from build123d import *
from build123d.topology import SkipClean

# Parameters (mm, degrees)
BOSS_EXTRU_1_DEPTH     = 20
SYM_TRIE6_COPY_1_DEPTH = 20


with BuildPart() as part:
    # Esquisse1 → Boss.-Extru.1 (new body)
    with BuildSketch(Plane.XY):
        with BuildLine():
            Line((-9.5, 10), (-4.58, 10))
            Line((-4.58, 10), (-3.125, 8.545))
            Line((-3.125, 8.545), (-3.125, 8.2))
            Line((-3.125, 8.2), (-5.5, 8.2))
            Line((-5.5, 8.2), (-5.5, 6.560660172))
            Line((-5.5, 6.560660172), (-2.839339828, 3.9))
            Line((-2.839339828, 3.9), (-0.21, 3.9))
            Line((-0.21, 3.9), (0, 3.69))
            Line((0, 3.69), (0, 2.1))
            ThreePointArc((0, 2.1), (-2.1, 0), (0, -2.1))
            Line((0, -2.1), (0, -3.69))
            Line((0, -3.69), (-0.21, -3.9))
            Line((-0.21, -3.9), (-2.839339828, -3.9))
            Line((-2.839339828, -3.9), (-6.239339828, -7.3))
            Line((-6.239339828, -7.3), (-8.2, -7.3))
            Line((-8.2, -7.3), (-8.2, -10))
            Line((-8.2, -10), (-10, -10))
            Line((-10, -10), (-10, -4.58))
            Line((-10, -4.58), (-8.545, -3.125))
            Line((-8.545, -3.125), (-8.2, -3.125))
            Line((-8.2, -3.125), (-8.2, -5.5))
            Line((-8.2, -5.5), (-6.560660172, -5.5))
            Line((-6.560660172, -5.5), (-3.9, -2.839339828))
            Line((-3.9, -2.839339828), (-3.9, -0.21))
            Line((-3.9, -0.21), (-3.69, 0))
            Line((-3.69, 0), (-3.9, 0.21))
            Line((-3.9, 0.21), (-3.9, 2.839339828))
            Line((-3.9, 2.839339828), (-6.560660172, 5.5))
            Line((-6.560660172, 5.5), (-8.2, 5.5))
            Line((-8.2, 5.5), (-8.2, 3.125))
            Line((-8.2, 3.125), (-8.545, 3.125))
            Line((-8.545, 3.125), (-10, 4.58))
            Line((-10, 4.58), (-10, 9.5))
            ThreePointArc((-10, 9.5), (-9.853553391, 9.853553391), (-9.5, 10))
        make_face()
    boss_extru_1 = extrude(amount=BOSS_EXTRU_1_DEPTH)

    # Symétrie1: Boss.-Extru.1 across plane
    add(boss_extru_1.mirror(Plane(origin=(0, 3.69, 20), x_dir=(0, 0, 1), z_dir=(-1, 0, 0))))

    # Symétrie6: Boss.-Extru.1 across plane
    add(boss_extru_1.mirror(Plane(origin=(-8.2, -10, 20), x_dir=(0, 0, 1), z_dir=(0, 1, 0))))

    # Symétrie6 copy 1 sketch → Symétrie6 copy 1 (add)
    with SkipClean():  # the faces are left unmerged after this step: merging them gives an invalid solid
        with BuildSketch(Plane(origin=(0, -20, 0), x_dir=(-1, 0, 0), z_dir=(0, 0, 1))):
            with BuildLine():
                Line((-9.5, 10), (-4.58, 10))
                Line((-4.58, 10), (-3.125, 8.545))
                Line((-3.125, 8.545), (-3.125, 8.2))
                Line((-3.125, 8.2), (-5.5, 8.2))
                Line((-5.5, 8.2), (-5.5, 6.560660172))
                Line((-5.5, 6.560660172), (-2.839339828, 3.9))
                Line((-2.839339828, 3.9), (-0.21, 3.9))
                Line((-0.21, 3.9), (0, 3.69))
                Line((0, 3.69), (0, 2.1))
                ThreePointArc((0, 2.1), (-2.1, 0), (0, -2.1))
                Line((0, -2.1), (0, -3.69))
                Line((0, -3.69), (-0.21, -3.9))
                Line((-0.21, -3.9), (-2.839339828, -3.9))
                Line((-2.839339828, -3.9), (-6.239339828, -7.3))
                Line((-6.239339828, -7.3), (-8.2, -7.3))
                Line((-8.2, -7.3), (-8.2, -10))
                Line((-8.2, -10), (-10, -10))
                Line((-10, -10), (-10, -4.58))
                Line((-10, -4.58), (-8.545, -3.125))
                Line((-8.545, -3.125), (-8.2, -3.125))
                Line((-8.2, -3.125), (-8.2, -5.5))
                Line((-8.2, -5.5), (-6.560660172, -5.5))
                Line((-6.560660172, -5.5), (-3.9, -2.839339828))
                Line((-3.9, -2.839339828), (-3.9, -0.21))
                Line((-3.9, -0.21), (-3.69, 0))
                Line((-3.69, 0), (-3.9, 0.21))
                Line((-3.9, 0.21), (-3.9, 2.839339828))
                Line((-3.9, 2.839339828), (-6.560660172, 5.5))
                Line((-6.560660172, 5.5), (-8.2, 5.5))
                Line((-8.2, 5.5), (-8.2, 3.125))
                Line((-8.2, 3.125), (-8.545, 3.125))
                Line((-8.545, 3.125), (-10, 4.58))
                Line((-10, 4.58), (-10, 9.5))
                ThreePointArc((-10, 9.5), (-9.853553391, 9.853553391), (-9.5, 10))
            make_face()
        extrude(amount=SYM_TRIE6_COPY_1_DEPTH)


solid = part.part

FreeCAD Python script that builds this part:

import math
import FreeCAD as App
import Part
import Sketcher
Q = App.Units.Quantity

doc = App.newDocument("Part")
body = doc.addObject("PartDesign::Body", "Body")

# Sketch on XY plane
sketch1 = body.newObject("Sketcher::SketchObject", "Sketch")
sketch1.AttachmentSupport = (doc.getObject("XY_Plane"), [""])
sketch1.MapMode = "FlatFace"
sketch1.addGeometry([
    Part.LineSegment(App.Vector(-4.58, 10, 0), App.Vector(-9.5, 10, 0)),  # 0
    Part.ArcOfCircle(Part.Circle(App.Vector(-9.5, 9.5, 0), App.Vector(0, 0, 1), 0.5), math.radians(90), math.radians(180)),  # 1
    Part.LineSegment(App.Vector(-10, 9.5, 0), App.Vector(-10, 4.58, 0)),  # 2
    Part.LineSegment(App.Vector(-10, 4.58, 0), App.Vector(-8.54, 3.12, 0)),  # 3
    Part.LineSegment(App.Vector(-8.54, 3.12, 0), App.Vector(-8.2, 3.12, 0)),  # 4
    Part.LineSegment(App.Vector(-8.2, 3.12, 0), App.Vector(-8.2, 5.5, 0)),  # 5
    Part.LineSegment(App.Vector(-8.2, 5.5, 0), App.Vector(-6.56, 5.5, 0)),  # 6
    Part.LineSegment(App.Vector(-6.56, 5.5, 0), App.Vector(-3.9, 2.84, 0)),  # 7
    Part.LineSegment(App.Vector(-3.9, 2.84, 0), App.Vector(-3.9, 0.21, 0)),  # 8
    Part.LineSegment(App.Vector(-3.9, 0.21, 0), App.Vector(-3.69, 0, 0)),  # 9
    Part.LineSegment(App.Vector(-3.69, 0, 0), App.Vector(-3.9, -0.21, 0)),  # 10
    Part.LineSegment(App.Vector(-3.9, -0.21, 0), App.Vector(-3.9, -2.84, 0)),  # 11
    Part.LineSegment(App.Vector(-3.9, -2.84, 0), App.Vector(-6.56, -5.5, 0)),  # 12
    Part.LineSegment(App.Vector(-6.56, -5.5, 0), App.Vector(-8.2, -5.5, 0)),  # 13
    Part.LineSegment(App.Vector(-8.2, -5.5, 0), App.Vector(-8.2, -3.12, 0)),  # 14
    Part.LineSegment(App.Vector(-8.2, -3.12, 0), App.Vector(-8.54, -3.12, 0)),  # 15
    Part.LineSegment(App.Vector(-8.54, -3.12, 0), App.Vector(-10, -4.58, 0)),  # 16
    Part.LineSegment(App.Vector(-10, -4.58, 0), App.Vector(-10, -10, 0)),  # 17
    Part.LineSegment(App.Vector(-10, -10, 0), App.Vector(-8.2, -10, 0)),  # 18
    Part.LineSegment(App.Vector(-8.2, -10, 0), App.Vector(-8.2, -7.3, 0)),  # 19
    Part.LineSegment(App.Vector(-8.2, -7.3, 0), App.Vector(-6.24, -7.3, 0)),  # 20
    Part.LineSegment(App.Vector(-6.24, -7.3, 0), App.Vector(-2.84, -3.9, 0)),  # 21
    Part.LineSegment(App.Vector(-2.84, -3.9, 0), App.Vector(-0.21, -3.9, 0)),  # 22
    Part.LineSegment(App.Vector(-0.21, -3.9, 0), App.Vector(0, -3.69, 0)),  # 23
    Part.LineSegment(App.Vector(0, -3.69, 0), App.Vector(0, -2.1, 0)),  # 24
    Part.ArcOfCircle(Part.Circle(App.Vector(0, 0, 0), App.Vector(0, 0, 1), 2.1), math.radians(90), math.radians(270)),  # 25
    Part.LineSegment(App.Vector(0, 2.1, 0), App.Vector(0, 3.69, 0)),  # 26
    Part.LineSegment(App.Vector(0, 3.69, 0), App.Vector(-0.21, 3.9, 0)),  # 27
    Part.LineSegment(App.Vector(-0.21, 3.9, 0), App.Vector(-2.84, 3.9, 0)),  # 28
    Part.LineSegment(App.Vector(-2.84, 3.9, 0), App.Vector(-5.5, 6.56, 0)),  # 29
    Part.LineSegment(App.Vector(-5.5, 6.56, 0), App.Vector(-5.5, 8.2, 0)),  # 30
    Part.LineSegment(App.Vector(-5.5, 8.2, 0), App.Vector(-3.12, 8.2, 0)),  # 31
    Part.LineSegment(App.Vector(-3.12, 8.2, 0), App.Vector(-3.12, 8.54, 0)),  # 32
    Part.LineSegment(App.Vector(-3.12, 8.54, 0), App.Vector(-4.58, 10, 0)),  # 33
], False)
sketch1.addConstraint([
    Sketcher.Constraint("Tangent", 0, 2, 1, 1),
    Sketcher.Constraint("Tangent", 1, 2, 2, 1),
    Sketcher.Constraint("Coincident", 2, 2, 3, 1),
    Sketcher.Constraint("Coincident", 3, 2, 4, 1),
    Sketcher.Constraint("Coincident", 4, 2, 5, 1),
    Sketcher.Constraint("Coincident", 5, 2, 6, 1),
    Sketcher.Constraint("Coincident", 6, 2, 7, 1),
    Sketcher.Constraint("Coincident", 7, 2, 8, 1),
    Sketcher.Constraint("Coincident", 8, 2, 9, 1),
    Sketcher.Constraint("Coincident", 9, 2, 10, 1),
    Sketcher.Constraint("Coincident", 10, 2, 11, 1),
    Sketcher.Constraint("Coincident", 11, 2, 12, 1),
    Sketcher.Constraint("Coincident", 12, 2, 13, 1),
    Sketcher.Constraint("Coincident", 13, 2, 14, 1),
    Sketcher.Constraint("Coincident", 14, 2, 15, 1),
    Sketcher.Constraint("Coincident", 15, 2, 16, 1),
    Sketcher.Constraint("Coincident", 16, 2, 17, 1),
    Sketcher.Constraint("Coincident", 17, 2, 18, 1),
    Sketcher.Constraint("Coincident", 18, 2, 19, 1),
    Sketcher.Constraint("Coincident", 19, 2, 20, 1),
    Sketcher.Constraint("Coincident", 20, 2, 21, 1),
    Sketcher.Constraint("Coincident", 21, 2, 22, 1),
    Sketcher.Constraint("Coincident", 22, 2, 23, 1),
    Sketcher.Constraint("Coincident", 23, 2, 24, 1),
    Sketcher.Constraint("Coincident", 24, 2, 25, 2),
    Sketcher.Constraint("Coincident", 25, 1, 26, 1),
    Sketcher.Constraint("Coincident", 26, 2, 27, 1),
    Sketcher.Constraint("Coincident", 27, 2, 28, 1),
    Sketcher.Constraint("Coincident", 28, 2, 29, 1),
    Sketcher.Constraint("Coincident", 29, 2, 30, 1),
    Sketcher.Constraint("Coincident", 30, 2, 31, 1),
    Sketcher.Constraint("Coincident", 31, 2, 32, 1),
    Sketcher.Constraint("Coincident", 32, 2, 33, 1),
    Sketcher.Constraint("Coincident", 33, 2, 0, 1),
    Sketcher.Constraint("Horizontal", 0),
    Sketcher.Constraint("Vertical", 2),
    Sketcher.Constraint("Horizontal", 4),
    Sketcher.Constraint("Vertical", 5),
    Sketcher.Constraint("Horizontal", 6),
    Sketcher.Constraint("Vertical", 8),
    Sketcher.Constraint("Vertical", 11),
    Sketcher.Constraint("Horizontal", 13),
    Sketcher.Constraint("Vertical", 14),
    Sketcher.Constraint("Horizontal", 15),
    Sketcher.Constraint("Vertical", 17),
    Sketcher.Constraint("Horizontal", 18),
    Sketcher.Constraint("Vertical", 19),
    Sketcher.Constraint("Horizontal", 20),
    Sketcher.Constraint("Horizontal", 22),
    Sketcher.Constraint("Vertical", 24),
    Sketcher.Constraint("Vertical", 26),
    Sketcher.Constraint("Horizontal", 28),
    Sketcher.Constraint("Vertical", 30),
    Sketcher.Constraint("Horizontal", 31),
    Sketcher.Constraint("Vertical", 32),
    Sketcher.Constraint("Coincident", 25, 3, -1, 1),
    Sketcher.Constraint("Symmetric", 23, 2, 26, 2, -1, 1),
    Sketcher.Constraint("Symmetric", 8, 2, 10, 2, -1),
    Sketcher.Constraint("Symmetric", 6, 2, 12, 2, -1),
    Sketcher.Constraint("Symmetric", 4, 2, 14, 2, -1),
    Sketcher.Constraint("Symmetric", 2, 2, 16, 2, -1),
    Sketcher.Constraint("Symmetric", 22, 2, 27, 2, -1),
    Sketcher.Constraint("PointOnObject", 9, 2, -1),
    Sketcher.Constraint("PointOnObject", 23, 2, -2),
    Sketcher.Constraint("Parallel", 3, 7),
    Sketcher.Constraint("Parallel", 7, 9),
    Sketcher.Constraint("Perpendicular", 9, 10),
    Sketcher.Constraint("Parallel", 10, 12),
    Sketcher.Constraint("Parallel", 12, 16),
    Sketcher.Constraint("Parallel", 16, 21),
    Sketcher.Constraint("Parallel", 21, 23),
    Sketcher.Constraint("Parallel", 27, 29),
    Sketcher.Constraint("Parallel", 29, 33),
    Sketcher.Constraint("Vertical", 14, 2, 18, 2),
    Sketcher.Constraint("Vertical", 21, 2, 28, 2),
    Sketcher.Constraint("Equal", 0, 2),
    Sketcher.Constraint("Equal", 31, 5),
    Sketcher.Constraint("Equal", 28, 8),
    Sketcher.Constraint("Equal", 13, 30),
    Sketcher.Constraint("Equal", 15, 32),
    Sketcher.Constraint("Equal", 10, 23),
    Sketcher.Constraint("Equal", 12, 29),
    Sketcher.Constraint("Equal", 16, 33),
    Sketcher.Constraint("Radius", 1, Q("0.5 mm")),
    Sketcher.Constraint("Radius", 25, Q("2.1 mm")),
    Sketcher.Constraint("DistanceX", 18, 1, 18, 2, Q("1.8 mm")),
    Sketcher.Constraint("DistanceY", 19, 1, 19, 2, Q("2.7 mm")),
    Sketcher.Constraint("DistanceY", -1, 1, 0, 2, Q("10 mm")),
    Sketcher.Constraint("DistanceY", 17, 2, -1, 1, Q("10 mm")),
    Sketcher.Constraint("DistanceY", 5, 2, 1, 3, Q("4 mm")),
    Sketcher.Constraint("DistanceX", 0, 2, 0, 1, Q("4.92 mm")),
    Sketcher.Constraint("DistanceY", 24, 1, 24, 2, Q("1.59 mm")),
    Sketcher.Constraint("DistanceX", 7, 2, -1, 1, Q("3.9 mm")),
    Sketcher.Constraint("DistanceX", 4, 1, 4, 2, Q("0.345 mm")),
    Sketcher.Constraint("DistanceX", 6, 1, 6, 2, Q("1.63934 mm")),
])
pad1 = body.newObject("PartDesign::Pad", "Pad")
pad1.Profile = sketch1
pad1.Length = 20
doc.recompute()

mirrored = body.newObject("PartDesign::Mirrored", "Mirrored")
mirrored.Originals = [pad1]
mirrored.MirrorPlane = (doc.getObject("YZ_Plane"), [""])
body.Tip = mirrored
doc.recompute()

datumplane = body.newObject("PartDesign::Plane", "DatumPlane")
datumplane.AttachmentSupport = (doc.getObject("XZ_Plane"), [""])
datumplane.MapMode = "FlatFace"
datumplane.AttachmentOffset = App.Placement(App.Vector(0, 0, 10), App.Rotation())
mirrored2 = body.newObject("PartDesign::Mirrored", "Mirrored001")
mirrored2.Originals = [pad1]
mirrored2.MirrorPlane = (datumplane, [""])
body.Tip = mirrored2

# Sketch on XY plane
sketch2 = body.newObject("Sketcher::SketchObject", "Sketch001")
sketch2.AttachmentSupport = (doc.getObject("XY_Plane"), [""])
sketch2.MapMode = "FlatFace"
sketch2.addGeometry([
    Part.LineSegment(App.Vector(4.58, -30, 0), App.Vector(9.5, -30, 0)),  # 0
    Part.ArcOfCircle(Part.Circle(App.Vector(9.5, -29.5, 0), App.Vector(0, 0, 1), 0.5), math.radians(-90), math.radians(0)),  # 1
    Part.LineSegment(App.Vector(10, -29.5, 0), App.Vector(10, -24.58, 0)),  # 2
    Part.LineSegment(App.Vector(10, -24.58, 0), App.Vector(8.54, -23.12, 0)),  # 3
    Part.LineSegment(App.Vector(8.54, -23.12, 0), App.Vector(8.2, -23.12, 0)),  # 4
    Part.LineSegment(App.Vector(8.2, -23.12, 0), App.Vector(8.2, -25.5, 0)),  # 5
    Part.LineSegment(App.Vector(8.2, -25.5, 0), App.Vector(6.56, -25.5, 0)),  # 6
    Part.LineSegment(App.Vector(6.56, -25.5, 0), App.Vector(3.9, -22.84, 0)),  # 7
    Part.LineSegment(App.Vector(3.9, -22.84, 0), App.Vector(3.9, -20.21, 0)),  # 8
    Part.LineSegment(App.Vector(3.9, -20.21, 0), App.Vector(3.69, -20, 0)),  # 9
    Part.LineSegment(App.Vector(3.69, -20, 0), App.Vector(3.9, -19.79, 0)),  # 10
    Part.LineSegment(App.Vector(3.9, -19.79, 0), App.Vector(3.9, -17.16, 0)),  # 11
    Part.LineSegment(App.Vector(3.9, -17.16, 0), App.Vector(6.56, -14.5, 0)),  # 12
    Part.LineSegment(App.Vector(6.56, -14.5, 0), App.Vector(8.2, -14.5, 0)),  # 13
    Part.LineSegment(App.Vector(8.2, -14.5, 0), App.Vector(8.2, -16.88, 0)),  # 14
    Part.LineSegment(App.Vector(8.2, -16.88, 0), App.Vector(8.54, -16.88, 0)),  # 15
    Part.LineSegment(App.Vector(8.54, -16.88, 0), App.Vector(10, -15.42, 0)),  # 16
    Part.LineSegment(App.Vector(10, -15.42, 0), App.Vector(10, -10, 0)),  # 17
    Part.LineSegment(App.Vector(10, -10, 0), App.Vector(8.2, -10, 0)),  # 18
    Part.LineSegment(App.Vector(8.2, -10, 0), App.Vector(8.2, -12.7, 0)),  # 19
    Part.LineSegment(App.Vector(8.2, -12.7, 0), App.Vector(6.24, -12.7, 0)),  # 20
    Part.LineSegment(App.Vector(6.24, -12.7, 0), App.Vector(2.84, -16.1, 0)),  # 21
    Part.LineSegment(App.Vector(2.84, -16.1, 0), App.Vector(0.21, -16.1, 0)),  # 22
    Part.LineSegment(App.Vector(0.21, -16.1, 0), App.Vector(0, -16.31, 0)),  # 23
    Part.LineSegment(App.Vector(0, -16.31, 0), App.Vector(0, -17.9, 0)),  # 24
    Part.ArcOfCircle(Part.Circle(App.Vector(0, -20, 0), App.Vector(0, 0, 1), 2.1), math.radians(-90), math.radians(90)),  # 25
    Part.LineSegment(App.Vector(0, -22.1, 0), App.Vector(0, -23.69, 0)),  # 26
    Part.LineSegment(App.Vector(0, -23.69, 0), App.Vector(0.21, -23.9, 0)),  # 27
    Part.LineSegment(App.Vector(0.21, -23.9, 0), App.Vector(2.84, -23.9, 0)),  # 28
    Part.LineSegment(App.Vector(2.84, -23.9, 0), App.Vector(5.5, -26.56, 0)),  # 29
    Part.LineSegment(App.Vector(5.5, -26.56, 0), App.Vector(5.5, -28.2, 0)),  # 30
    Part.LineSegment(App.Vector(5.5, -28.2, 0), App.Vector(3.12, -28.2, 0)),  # 31
    Part.LineSegment(App.Vector(3.12, -28.2, 0), App.Vector(3.12, -28.55, 0)),  # 32
    Part.LineSegment(App.Vector(3.12, -28.55, 0), App.Vector(4.58, -30, 0)),  # 33
], False)
sketch2.addConstraint([
    Sketcher.Constraint("Tangent", 0, 2, 1, 1),
    Sketcher.Constraint("Tangent", 1, 2, 2, 1),
    Sketcher.Constraint("Coincident", 2, 2, 3, 1),
    Sketcher.Constraint("Coincident", 3, 2, 4, 1),
    Sketcher.Constraint("Coincident", 4, 2, 5, 1),
    Sketcher.Constraint("Coincident", 5, 2, 6, 1),
    Sketcher.Constraint("Coincident", 6, 2, 7, 1),
    Sketcher.Constraint("Coincident", 7, 2, 8, 1),
    Sketcher.Constraint("Coincident", 8, 2, 9, 1),
    Sketcher.Constraint("Coincident", 9, 2, 10, 1),
    Sketcher.Constraint("Coincident", 10, 2, 11, 1),
    Sketcher.Constraint("Coincident", 11, 2, 12, 1),
    Sketcher.Constraint("Coincident", 12, 2, 13, 1),
    Sketcher.Constraint("Coincident", 13, 2, 14, 1),
    Sketcher.Constraint("Coincident", 14, 2, 15, 1),
    Sketcher.Constraint("Coincident", 15, 2, 16, 1),
    Sketcher.Constraint("Coincident", 16, 2, 17, 1),
    Sketcher.Constraint("Coincident", 17, 2, 18, 1),
    Sketcher.Constraint("Coincident", 18, 2, 19, 1),
    Sketcher.Constraint("Coincident", 19, 2, 20, 1),
    Sketcher.Constraint("Coincident", 20, 2, 21, 1),
    Sketcher.Constraint("Coincident", 21, 2, 22, 1),
    Sketcher.Constraint("Coincident", 22, 2, 23, 1),
    Sketcher.Constraint("Coincident", 23, 2, 24, 1),
    Sketcher.Constraint("Coincident", 24, 2, 25, 2),
    Sketcher.Constraint("Coincident", 25, 1, 26, 1),
    Sketcher.Constraint("Coincident", 26, 2, 27, 1),
    Sketcher.Constraint("Coincident", 27, 2, 28, 1),
    Sketcher.Constraint("Coincident", 28, 2, 29, 1),
    Sketcher.Constraint("Coincident", 29, 2, 30, 1),
    Sketcher.Constraint("Coincident", 30, 2, 31, 1),
    Sketcher.Constraint("Coincident", 31, 2, 32, 1),
    Sketcher.Constraint("Coincident", 32, 2, 33, 1),
    Sketcher.Constraint("Coincident", 33, 2, 0, 1),
    Sketcher.Constraint("Horizontal", 0),
    Sketcher.Constraint("Vertical", 2),
    Sketcher.Constraint("Horizontal", 4),
    Sketcher.Constraint("Vertical", 5),
    Sketcher.Constraint("Horizontal", 6),
    Sketcher.Constraint("Vertical", 8),
    Sketcher.Constraint("Vertical", 11),
    Sketcher.Constraint("Horizontal", 13),
    Sketcher.Constraint("Vertical", 14),
    Sketcher.Constraint("Horizontal", 15),
    Sketcher.Constraint("Vertical", 17),
    Sketcher.Constraint("Horizontal", 18),
    Sketcher.Constraint("Vertical", 19),
    Sketcher.Constraint("Horizontal", 20),
    Sketcher.Constraint("Horizontal", 22),
    Sketcher.Constraint("Vertical", 24),
    Sketcher.Constraint("Vertical", 26),
    Sketcher.Constraint("Horizontal", 28),
    Sketcher.Constraint("Vertical", 30),
    Sketcher.Constraint("Horizontal", 31),
    Sketcher.Constraint("Vertical", 32),
    Sketcher.Constraint("PointOnObject", 25, 3, -2),
    Sketcher.Constraint("PointOnObject", 23, 2, -2),
    Sketcher.Constraint("PointOnObject", 25, 1, -2),
    Sketcher.Constraint("Parallel", 3, 7),
    Sketcher.Constraint("Parallel", 7, 9),
    Sketcher.Constraint("Perpendicular", 9, 10),
    Sketcher.Constraint("Parallel", 10, 12),
    Sketcher.Constraint("Parallel", 12, 16),
    Sketcher.Constraint("Parallel", 16, 21),
    Sketcher.Constraint("Parallel", 21, 23),
    Sketcher.Constraint("Perpendicular", 23, 27),
    Sketcher.Constraint("Parallel", 27, 29),
    Sketcher.Constraint("Parallel", 29, 33),
    Sketcher.Constraint("Horizontal", 25, 3, 9, 2),
    Sketcher.Constraint("Vertical", 8, 2, 10, 2),
    Sketcher.Constraint("Vertical", 6, 2, 12, 2),
    Sketcher.Constraint("Vertical", 5, 2, 13, 2),
    Sketcher.Constraint("Vertical", 3, 2, 15, 2),
    Sketcher.Constraint("Vertical", 2, 2, 16, 2),
    Sketcher.Constraint("Vertical", 14, 2, 18, 2),
    Sketcher.Constraint("Vertical", 22, 2, 27, 2),
    Sketcher.Constraint("Vertical", 21, 2, 28, 2),
    Sketcher.Constraint("Equal", 0, 2),
    Sketcher.Constraint("Equal", 31, 5),
    Sketcher.Constraint("Equal", 28, 8),
    Sketcher.Constraint("Equal", 8, 11),
    Sketcher.Constraint("Equal", 5, 14),
    Sketcher.Constraint("Equal", 24, 26),
    Sketcher.Constraint("Equal", 13, 30),
    Sketcher.Constraint("Equal", 15, 32),
    Sketcher.Constraint("Equal", 9, 10),
    Sketcher.Constraint("Equal", 10, 23),
    Sketcher.Constraint("Equal", 12, 29),
    Sketcher.Constraint("Equal", 16, 33),
    Sketcher.Constraint("Radius", 1, Q("0.5 mm")),
    Sketcher.Constraint("Radius", 25, Q("2.1 mm")),
    Sketcher.Constraint("DistanceX", 18, 2, 18, 1, Q("1.8 mm")),
    Sketcher.Constraint("DistanceY", 19, 2, 19, 1, Q("2.7 mm")),
    Sketcher.Constraint("DistanceY", 25, 3, -1, 1, Q("20 mm")),
    Sketcher.Constraint("DistanceY", 0, 2, -1, 1, Q("30 mm")),
    Sketcher.Constraint("DistanceY", 17, 2, -1, 1, Q("10 mm")),
    Sketcher.Constraint("DistanceY", 1, 3, 5, 2, Q("4 mm")),
    Sketcher.Constraint("DistanceX", 0, 1, 0, 2, Q("4.92 mm")),
    Sketcher.Constraint("DistanceY", 24, 2, 24, 1, Q("1.59 mm")),
    Sketcher.Constraint("DistanceX", -1, 1, 7, 2, Q("3.9 mm")),
    Sketcher.Constraint("DistanceX", 4, 2, 4, 1, Q("0.345 mm")),
    Sketcher.Constraint("DistanceX", 6, 2, 6, 1, Q("1.63934 mm")),
])
pad2 = body.newObject("PartDesign::Pad", "Pad001")
pad2.Profile = sketch2
pad2.Length = 20

doc.recompute()
